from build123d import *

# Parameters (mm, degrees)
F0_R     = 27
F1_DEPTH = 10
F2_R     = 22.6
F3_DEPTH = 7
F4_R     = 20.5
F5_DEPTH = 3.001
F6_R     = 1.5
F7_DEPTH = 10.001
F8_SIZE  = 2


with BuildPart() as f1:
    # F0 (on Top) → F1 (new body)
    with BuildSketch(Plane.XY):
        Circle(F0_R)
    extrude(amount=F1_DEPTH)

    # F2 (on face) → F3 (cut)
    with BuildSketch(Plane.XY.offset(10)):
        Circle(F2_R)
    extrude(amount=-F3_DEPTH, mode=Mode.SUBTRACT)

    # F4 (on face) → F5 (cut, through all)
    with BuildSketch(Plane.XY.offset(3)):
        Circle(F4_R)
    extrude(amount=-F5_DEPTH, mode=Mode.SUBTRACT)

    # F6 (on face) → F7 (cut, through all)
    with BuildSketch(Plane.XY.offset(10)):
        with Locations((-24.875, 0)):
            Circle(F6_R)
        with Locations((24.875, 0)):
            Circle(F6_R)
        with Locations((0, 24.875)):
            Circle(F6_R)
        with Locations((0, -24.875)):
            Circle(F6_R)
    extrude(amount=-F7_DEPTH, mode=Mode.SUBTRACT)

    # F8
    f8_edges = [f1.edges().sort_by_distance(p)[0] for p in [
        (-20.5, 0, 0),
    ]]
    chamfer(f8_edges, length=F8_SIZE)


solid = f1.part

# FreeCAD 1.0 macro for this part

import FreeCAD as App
import Part
import Sketcher

V = App.Vector


def edges_at(feature, points):
    """Names of the edges that pass closest to the given points."""
    edges = feature.Shape.Edges
    near = lambda p: min(range(len(edges)), key=lambda i: edges[i].distToShape(Part.Vertex(*p))[0])
    return sorted({f"Edge{near(p) + 1}" for p in points})

doc = App.newDocument("Part")
params = doc.addObject("Spreadsheet::Sheet", "Params")
for row, (alias, value) in enumerate([
    ("sketch1_diameter", "54 mm"),
    ("pad1_length", "10 mm"),
    ("sketch2_diameter", "45.2 mm"),
    ("pocket1_length", "7 mm"),
    ("sketch3_diameter", "41 mm"),
    ("sketch4_diameter", "3 mm"),
    ("chamfer_size", "2 mm"),
], start=1):
    params.set(f"A{row}", alias)
    params.set(f"B{row}", "=" + value)
    params.setAlias(f"B{row}", alias)

body = doc.addObject("PartDesign::Body", "Body")

# Sketch on XY plane
sketch1 = doc.addObject("Sketcher::SketchObject", "Sketch")
body.addObject(sketch1)
sketch1.AttachmentSupport = (doc.XY_Plane, [""])
sketch1.MapMode = "FlatFace"
sketch1.addGeometry(Part.Circle(V(0, 0, 0), V(0, 0, 1), 27), False)
sketch1.addConstraint([
    Sketcher.Constraint("Coincident", 0, 3, -1, 1),
    Sketcher.Constraint("Diameter", 0, 54.0),
])
sketch1.setExpression("Constraints[1]", "Params.sketch1_diameter")
pad1 = doc.addObject("PartDesign::Pad", "Pad")
body.addObject(pad1)
pad1.Profile = sketch1
pad1.setExpression("Length", "Params.pad1_length")

# Sketch on XY plane
sketch2 = doc.addObject("Sketcher::SketchObject", "Sketch001")
body.addObject(sketch2)
sketch2.AttachmentSupport = (doc.XY_Plane, [""])
sketch2.MapMode = "FlatFace"
sketch2.AttachmentOffset = App.Placement(V(0, 0, 10), App.Rotation())
sketch2.addGeometry(Part.Circle(V(0, 0, 0), V(0, 0, 1), 23), False)
sketch2.addConstraint([
    Sketcher.Constraint("Coincident", 0, 3, -1, 1),
    Sketcher.Constraint("Diameter", 0, 45.2),
])
sketch2.setExpression("Constraints[1]", "Params.sketch2_diameter")
pocket1 = doc.addObject("PartDesign::Pocket", "Pocket")
body.addObject(pocket1)
pocket1.Profile = sketch2
pocket1.setExpression("Length", "Params.pocket1_length")

# Sketch on XY plane
sketch3 = doc.addObject("Sketcher::SketchObject", "Sketch002")
body.addObject(sketch3)
sketch3.AttachmentSupport = (doc.XY_Plane, [""])
sketch3.MapMode = "FlatFace"
sketch3.AttachmentOffset = App.Placement(V(0, 0, 3), App.Rotation())
sketch3.addGeometry(Part.Circle(V(0, 0, 0), V(0, 0, 1), 20), False)
sketch3.addConstraint([
    Sketcher.Constraint("Coincident", 0, 3, -1, 1),
    Sketcher.Constraint("Diameter", 0, 41.0),
])
sketch3.setExpression("Constraints[1]", "Params.sketch3_diameter")
pocket2 = doc.addObject("PartDesign::Pocket", "Pocket001")
body.addObject(pocket2)
pocket2.Profile = sketch3
pocket2.Type = "ThroughAll"

# Sketch on XY plane
sketch4 = doc.addObject("Sketcher::SketchObject", "Sketch003")
body.addObject(sketch4)
sketch4.AttachmentSupport = (doc.XY_Plane, [""])
sketch4.MapMode = "FlatFace"
sketch4.AttachmentOffset = App.Placement(V(0, 0, 10), App.Rotation())
sketch4.addGeometry([
    Part.Circle(V(-24.9, 0, 0), V(0, 0, 1), 1.5),
    Part.Circle(V(24.9, 0, 0), V(0, 0, 1), 1.5),
    Part.Circle(V(0, 24.9, 0), V(0, 0, 1), 1.5),
    Part.Circle(V(0, -24.9, 0), V(0, 0, 1), 1.5),
], False)
sketch4.addConstraint([
    Sketcher.Constraint("Equal", 0, 1),
    Sketcher.Constraint("Equal", 1, 2),
    Sketcher.Constraint("Equal", 2, 3),
    Sketcher.Constraint("Symmetric", 0, 3, 1, 3, -1, 1),
    Sketcher.Constraint("Symmetric", 2, 3, 3, 3, -1, 1),
    Sketcher.Constraint("PointOnObject", 0, 3, -1),
    Sketcher.Constraint("PointOnObject", 2, 3, -2),
    Sketcher.Constraint("Diameter", 0, 3.0),
    Sketcher.Constraint("DistanceX", 0, 3, 1, 3, 49.75),
    Sketcher.Constraint("DistanceY", 3, 3, 2, 3, 49.75),
])
sketch4.setExpression("Constraints[7]", "Params.sketch4_diameter")
pocket3 = doc.addObject("PartDesign::Pocket", "Pocket002")
body.addObject(pocket3)
pocket3.Profile = sketch4
pocket3.Type = "ThroughAll"
doc.recompute()

chamfer = doc.addObject("PartDesign::Chamfer", "Chamfer")
body.addObject(chamfer)
chamfer.Base = (pocket3, edges_at(pocket3, [(-20.5, 0, 0)]))
chamfer.setExpression("Size", "Params.chamfer_size")

doc.recompute()
